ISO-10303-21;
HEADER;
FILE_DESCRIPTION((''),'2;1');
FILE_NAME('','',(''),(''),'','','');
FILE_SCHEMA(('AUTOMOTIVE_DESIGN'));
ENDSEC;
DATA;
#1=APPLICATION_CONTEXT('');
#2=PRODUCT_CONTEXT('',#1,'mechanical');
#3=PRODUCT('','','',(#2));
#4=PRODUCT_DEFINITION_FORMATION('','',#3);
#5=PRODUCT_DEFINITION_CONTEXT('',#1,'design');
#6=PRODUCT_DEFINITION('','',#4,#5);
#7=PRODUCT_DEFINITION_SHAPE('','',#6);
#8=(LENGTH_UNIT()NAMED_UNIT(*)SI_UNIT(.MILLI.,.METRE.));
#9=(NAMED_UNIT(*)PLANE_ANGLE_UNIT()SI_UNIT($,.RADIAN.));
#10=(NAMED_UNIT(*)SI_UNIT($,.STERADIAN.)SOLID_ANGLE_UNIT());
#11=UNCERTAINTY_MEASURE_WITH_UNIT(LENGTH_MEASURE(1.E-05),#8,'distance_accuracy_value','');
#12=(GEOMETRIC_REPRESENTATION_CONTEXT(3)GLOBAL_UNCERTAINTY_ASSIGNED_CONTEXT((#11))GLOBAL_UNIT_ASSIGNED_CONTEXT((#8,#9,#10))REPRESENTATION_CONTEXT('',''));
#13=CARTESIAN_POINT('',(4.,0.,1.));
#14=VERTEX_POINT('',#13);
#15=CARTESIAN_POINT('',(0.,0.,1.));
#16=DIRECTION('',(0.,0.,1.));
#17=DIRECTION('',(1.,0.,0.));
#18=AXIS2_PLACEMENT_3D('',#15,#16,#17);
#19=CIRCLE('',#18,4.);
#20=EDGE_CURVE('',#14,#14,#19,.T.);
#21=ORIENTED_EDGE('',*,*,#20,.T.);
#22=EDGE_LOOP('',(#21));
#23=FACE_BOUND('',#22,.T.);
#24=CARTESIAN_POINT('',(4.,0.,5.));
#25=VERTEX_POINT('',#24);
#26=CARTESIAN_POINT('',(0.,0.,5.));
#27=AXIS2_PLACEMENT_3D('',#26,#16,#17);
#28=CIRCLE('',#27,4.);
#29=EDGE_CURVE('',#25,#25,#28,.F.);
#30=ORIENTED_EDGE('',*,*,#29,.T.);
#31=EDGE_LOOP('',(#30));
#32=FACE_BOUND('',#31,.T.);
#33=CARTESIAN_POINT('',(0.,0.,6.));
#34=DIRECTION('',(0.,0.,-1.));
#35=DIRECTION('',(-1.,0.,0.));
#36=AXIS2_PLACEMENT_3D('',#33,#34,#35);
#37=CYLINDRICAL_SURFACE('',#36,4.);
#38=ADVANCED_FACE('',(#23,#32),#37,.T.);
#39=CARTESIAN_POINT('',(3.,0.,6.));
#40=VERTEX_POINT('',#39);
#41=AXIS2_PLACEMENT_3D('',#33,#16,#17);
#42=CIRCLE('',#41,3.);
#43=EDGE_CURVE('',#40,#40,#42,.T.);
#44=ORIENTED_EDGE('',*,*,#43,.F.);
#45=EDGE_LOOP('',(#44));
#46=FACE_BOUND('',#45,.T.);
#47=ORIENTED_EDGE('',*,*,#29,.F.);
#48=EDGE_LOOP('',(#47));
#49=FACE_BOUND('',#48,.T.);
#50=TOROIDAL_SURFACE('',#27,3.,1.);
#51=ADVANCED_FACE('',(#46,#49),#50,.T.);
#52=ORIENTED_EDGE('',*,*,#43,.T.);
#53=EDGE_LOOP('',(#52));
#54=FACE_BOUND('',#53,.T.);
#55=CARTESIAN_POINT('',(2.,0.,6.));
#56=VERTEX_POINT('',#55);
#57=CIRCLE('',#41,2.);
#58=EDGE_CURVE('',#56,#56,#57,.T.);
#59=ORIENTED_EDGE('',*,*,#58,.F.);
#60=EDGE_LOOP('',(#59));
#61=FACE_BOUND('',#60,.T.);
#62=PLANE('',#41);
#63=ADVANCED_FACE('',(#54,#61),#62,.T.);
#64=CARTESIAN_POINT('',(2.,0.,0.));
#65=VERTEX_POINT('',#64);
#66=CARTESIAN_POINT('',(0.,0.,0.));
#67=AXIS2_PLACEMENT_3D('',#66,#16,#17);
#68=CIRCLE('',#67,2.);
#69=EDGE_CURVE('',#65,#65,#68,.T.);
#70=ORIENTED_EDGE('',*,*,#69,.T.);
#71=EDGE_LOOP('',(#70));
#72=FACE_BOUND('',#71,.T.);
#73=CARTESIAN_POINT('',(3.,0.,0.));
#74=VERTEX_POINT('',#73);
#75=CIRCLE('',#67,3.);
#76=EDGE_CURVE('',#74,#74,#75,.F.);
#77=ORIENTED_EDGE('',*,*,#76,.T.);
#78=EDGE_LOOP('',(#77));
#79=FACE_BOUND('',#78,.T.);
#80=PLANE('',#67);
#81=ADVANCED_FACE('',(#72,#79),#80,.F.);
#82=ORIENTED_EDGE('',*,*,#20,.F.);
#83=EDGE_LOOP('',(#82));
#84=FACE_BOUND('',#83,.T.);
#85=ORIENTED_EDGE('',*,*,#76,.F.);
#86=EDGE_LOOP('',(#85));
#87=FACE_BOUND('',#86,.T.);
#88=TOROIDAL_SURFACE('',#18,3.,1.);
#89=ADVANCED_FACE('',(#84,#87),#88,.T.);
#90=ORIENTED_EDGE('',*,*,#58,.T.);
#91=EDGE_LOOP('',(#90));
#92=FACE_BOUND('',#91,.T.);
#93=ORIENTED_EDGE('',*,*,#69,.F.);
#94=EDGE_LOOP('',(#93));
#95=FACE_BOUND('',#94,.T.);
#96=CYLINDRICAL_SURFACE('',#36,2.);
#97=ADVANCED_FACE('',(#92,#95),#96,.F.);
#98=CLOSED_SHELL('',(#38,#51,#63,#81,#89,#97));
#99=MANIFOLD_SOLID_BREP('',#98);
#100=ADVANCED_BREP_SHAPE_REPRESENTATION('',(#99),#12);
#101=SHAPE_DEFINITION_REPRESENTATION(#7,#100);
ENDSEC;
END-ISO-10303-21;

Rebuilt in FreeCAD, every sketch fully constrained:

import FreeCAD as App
import Part
import Sketcher

V = App.Vector


def edges_at(feature, points):
    """Names of the edges that pass closest to the given points."""
    edges = feature.Shape.Edges
    near = lambda p: min(range(len(edges)), key=lambda i: edges[i].distToShape(Part.Vertex(*p))[0])
    return sorted({f"Edge{near(p) + 1}" for p in points})

doc = App.newDocument("Part")
body = doc.addObject("PartDesign::Body", "Body")

sketch1 = body.newObject("Sketcher::SketchObject", "Sketch")
sketch1.AttachmentSupport = (doc.getObject("XY_Plane"), [""])
sketch1.MapMode = "FlatFace"
sketch1.addGeometry([
    Part.Circle(V(0, 0, 0), V(0, 0, 1), 4),
    Part.Circle(V(0, 0, 0), V(0, 0, 1), 2),
], False)
sketch1.addConstraint([
    Sketcher.Constraint("Coincident", 0, 3, -1, 1),
    Sketcher.Constraint("Coincident", 1, 3, -1, 1),
    Sketcher.Constraint("Diameter", 0, 8.0),
    Sketcher.Constraint("Diameter", 1, 4.0),
])
pad1 = body.newObject("PartDesign::Pad", "Pad")
pad1.Profile = sketch1
pad1.Length = 6
doc.recompute()

fillet = body.newObject("PartDesign::Fillet", "Fillet")
fillet.Base = (pad1, edges_at(pad1, [(-4, 0, 6)]))
fillet.Radius = 1
doc.recompute()

fillet2 = body.newObject("PartDesign::Fillet", "Fillet001")
fillet2.Base = (fillet, edges_at(fillet, [(-4, 0, 0)]))
fillet2.Radius = 1

doc.recompute()
